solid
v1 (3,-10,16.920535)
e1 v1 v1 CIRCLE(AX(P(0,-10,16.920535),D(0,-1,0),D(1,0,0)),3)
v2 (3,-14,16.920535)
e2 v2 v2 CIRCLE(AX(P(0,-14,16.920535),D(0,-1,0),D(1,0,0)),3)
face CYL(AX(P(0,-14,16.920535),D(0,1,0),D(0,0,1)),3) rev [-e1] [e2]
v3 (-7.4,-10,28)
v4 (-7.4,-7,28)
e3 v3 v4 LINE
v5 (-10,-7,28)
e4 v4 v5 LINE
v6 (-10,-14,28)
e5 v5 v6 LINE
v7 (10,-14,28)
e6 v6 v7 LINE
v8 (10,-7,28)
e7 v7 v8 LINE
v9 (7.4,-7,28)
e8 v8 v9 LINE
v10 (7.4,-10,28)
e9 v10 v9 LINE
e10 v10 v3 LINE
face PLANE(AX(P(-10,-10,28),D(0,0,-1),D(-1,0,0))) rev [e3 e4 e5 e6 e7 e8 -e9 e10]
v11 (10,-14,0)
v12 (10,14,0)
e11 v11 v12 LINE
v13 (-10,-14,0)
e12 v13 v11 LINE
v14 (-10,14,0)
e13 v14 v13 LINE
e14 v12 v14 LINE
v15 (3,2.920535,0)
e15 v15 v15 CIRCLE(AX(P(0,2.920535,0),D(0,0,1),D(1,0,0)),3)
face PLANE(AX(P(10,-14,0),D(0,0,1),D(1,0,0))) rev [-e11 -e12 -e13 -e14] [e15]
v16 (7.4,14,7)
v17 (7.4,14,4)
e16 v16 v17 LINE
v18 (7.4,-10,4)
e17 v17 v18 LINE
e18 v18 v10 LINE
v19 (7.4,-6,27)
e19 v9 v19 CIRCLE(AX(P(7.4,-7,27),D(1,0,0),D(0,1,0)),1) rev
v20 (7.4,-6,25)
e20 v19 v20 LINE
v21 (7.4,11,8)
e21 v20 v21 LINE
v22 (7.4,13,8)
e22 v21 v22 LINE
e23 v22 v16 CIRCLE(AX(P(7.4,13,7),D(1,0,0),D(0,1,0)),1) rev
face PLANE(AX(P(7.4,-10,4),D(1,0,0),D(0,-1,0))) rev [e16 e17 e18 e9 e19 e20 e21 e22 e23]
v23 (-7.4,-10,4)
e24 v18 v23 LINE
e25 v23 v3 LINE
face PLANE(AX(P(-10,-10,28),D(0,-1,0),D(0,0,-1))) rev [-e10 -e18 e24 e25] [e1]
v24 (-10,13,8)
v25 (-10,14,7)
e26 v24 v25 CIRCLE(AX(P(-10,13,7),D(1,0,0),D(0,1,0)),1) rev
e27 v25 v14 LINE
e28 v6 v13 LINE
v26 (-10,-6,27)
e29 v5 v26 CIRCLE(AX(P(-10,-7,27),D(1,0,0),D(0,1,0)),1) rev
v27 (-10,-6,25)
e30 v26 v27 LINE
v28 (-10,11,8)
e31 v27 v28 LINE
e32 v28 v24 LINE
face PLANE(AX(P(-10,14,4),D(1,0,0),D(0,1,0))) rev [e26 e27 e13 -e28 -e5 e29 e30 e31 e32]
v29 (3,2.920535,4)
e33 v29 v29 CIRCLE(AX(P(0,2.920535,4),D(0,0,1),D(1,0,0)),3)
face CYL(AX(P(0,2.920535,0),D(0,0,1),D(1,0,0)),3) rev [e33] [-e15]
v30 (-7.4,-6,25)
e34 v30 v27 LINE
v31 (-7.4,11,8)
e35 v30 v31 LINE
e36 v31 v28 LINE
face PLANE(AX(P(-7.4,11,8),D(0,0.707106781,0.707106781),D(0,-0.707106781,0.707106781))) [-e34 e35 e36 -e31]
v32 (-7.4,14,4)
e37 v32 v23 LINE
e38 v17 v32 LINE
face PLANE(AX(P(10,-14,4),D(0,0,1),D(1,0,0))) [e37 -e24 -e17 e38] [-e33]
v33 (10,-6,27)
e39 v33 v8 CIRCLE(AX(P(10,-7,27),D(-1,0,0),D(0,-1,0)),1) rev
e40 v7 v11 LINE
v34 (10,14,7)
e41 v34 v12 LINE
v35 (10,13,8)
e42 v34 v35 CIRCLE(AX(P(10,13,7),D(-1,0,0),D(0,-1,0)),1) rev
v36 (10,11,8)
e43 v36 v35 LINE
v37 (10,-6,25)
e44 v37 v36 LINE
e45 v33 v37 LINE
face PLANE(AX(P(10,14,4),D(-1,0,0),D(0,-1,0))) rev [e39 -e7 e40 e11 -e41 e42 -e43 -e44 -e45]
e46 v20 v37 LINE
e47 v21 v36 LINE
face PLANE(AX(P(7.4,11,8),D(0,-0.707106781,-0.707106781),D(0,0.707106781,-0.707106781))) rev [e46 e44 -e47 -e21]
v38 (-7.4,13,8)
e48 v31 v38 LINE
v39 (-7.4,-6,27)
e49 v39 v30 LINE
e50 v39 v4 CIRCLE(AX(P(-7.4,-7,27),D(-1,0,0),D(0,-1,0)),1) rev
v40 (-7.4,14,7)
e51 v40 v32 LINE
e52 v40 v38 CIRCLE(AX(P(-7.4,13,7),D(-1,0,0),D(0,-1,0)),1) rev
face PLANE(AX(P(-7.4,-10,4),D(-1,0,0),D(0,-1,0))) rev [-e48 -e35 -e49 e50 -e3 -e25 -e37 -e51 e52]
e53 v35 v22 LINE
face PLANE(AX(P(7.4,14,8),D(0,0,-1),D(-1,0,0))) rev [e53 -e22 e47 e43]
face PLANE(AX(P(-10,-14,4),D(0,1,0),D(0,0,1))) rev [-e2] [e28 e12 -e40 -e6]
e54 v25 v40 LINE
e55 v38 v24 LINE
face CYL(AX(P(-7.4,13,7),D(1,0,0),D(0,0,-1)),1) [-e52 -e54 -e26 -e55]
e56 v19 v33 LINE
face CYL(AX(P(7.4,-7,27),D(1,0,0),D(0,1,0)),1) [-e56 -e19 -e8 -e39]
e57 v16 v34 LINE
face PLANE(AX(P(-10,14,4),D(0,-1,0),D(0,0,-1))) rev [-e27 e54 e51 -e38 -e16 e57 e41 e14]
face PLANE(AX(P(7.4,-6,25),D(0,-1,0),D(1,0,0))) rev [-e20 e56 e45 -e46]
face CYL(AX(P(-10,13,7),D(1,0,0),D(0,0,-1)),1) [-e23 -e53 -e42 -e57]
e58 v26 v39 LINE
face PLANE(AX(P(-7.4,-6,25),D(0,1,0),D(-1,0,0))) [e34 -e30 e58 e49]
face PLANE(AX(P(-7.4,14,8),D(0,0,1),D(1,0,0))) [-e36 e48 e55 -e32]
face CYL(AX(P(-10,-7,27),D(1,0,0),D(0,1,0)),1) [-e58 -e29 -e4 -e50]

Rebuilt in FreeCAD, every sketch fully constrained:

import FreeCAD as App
import Part
import Sketcher

V = App.Vector


def edges_at(feature, points):
    """Names of the edges that pass closest to the given points."""
    edges = feature.Shape.Edges
    near = lambda p: min(range(len(edges)), key=lambda i: edges[i].distToShape(Part.Vertex(*p))[0])
    return sorted({f"Edge{near(p) + 1}" for p in points})

doc = App.newDocument("Part")
body = doc.addObject("PartDesign::Body", "Body")

sketch1 = body.newObject("Sketcher::SketchObject", "Sketch")
sketch1.AttachmentSupport = (doc.getObject("XY_Plane"), [""])
sketch1.MapMode = "FlatFace"
sketch1.addGeometry(Part.LineSegment(V(-10, 14, 0), V(-10, -14, 0)), False)
sketch1.addGeometry(Part.LineSegment(V(-10, -14, 0), V(10, -14, 0)), False)
sketch1.addGeometry(Part.LineSegment(V(10, -14, 0), V(10, 14, 0)), False)
sketch1.addGeometry(Part.LineSegment(V(10, 14, 0), V(-10, 14, 0)), False)
sketch1.addConstraint(Sketcher.Constraint("Coincident", 0, 2, 1, 1))
sketch1.addConstraint(Sketcher.Constraint("Coincident", 1, 2, 2, 1))
sketch1.addConstraint(Sketcher.Constraint("Coincident", 2, 2, 3, 1))
sketch1.addConstraint(Sketcher.Constraint("Coincident", 3, 2, 0, 1))
sketch1.addConstraint(Sketcher.Constraint("Vertical", 0))
sketch1.addConstraint(Sketcher.Constraint("Horizontal", 1))
sketch1.addConstraint(Sketcher.Constraint("Vertical", 2))
sketch1.addConstraint(Sketcher.Constraint("Horizontal", 3))
sketch1.addConstraint(Sketcher.Constraint("Symmetric", 0, 2, 2, 2, -1, 1))
sketch1.addConstraint(Sketcher.Constraint("DistanceX", 1, 1, 1, 2, 20.0))
sketch1.addConstraint(Sketcher.Constraint("DistanceY", 0, 2, 0, 1, 28.0))
pad1 = body.newObject("PartDesign::Pad", "Pad")
pad1.Profile = sketch1
pad1.Length = 4

sketch2 = body.newObject("Sketcher::SketchObject", "Sketch001")
sketch2.AttachmentSupport = (doc.getObject("XY_Plane"), [""])
sketch2.MapMode = "FlatFace"
sketch2.AttachmentOffset = App.Placement(V(0, 0, 4), App.Rotation())
sketch2.addGeometry(Part.LineSegment(V(-10, -10, 0), V(-10, -14, 0)), False)
sketch2.addGeometry(Part.LineSegment(V(-10, -14, 0), V(10, -14, 0)), False)
sketch2.addGeometry(Part.LineSegment(V(10, -14, 0), V(10, -10, 0)), False)
sketch2.addGeometry(Part.LineSegment(V(10, -10, 0), V(-10, -10, 0)), False)
sketch2.addConstraint(Sketcher.Constraint("Coincident", 0, 2, 1, 1))
sketch2.addConstraint(Sketcher.Constraint("Coincident", 1, 2, 2, 1))
sketch2.addConstraint(Sketcher.Constraint("Coincident", 2, 2, 3, 1))
sketch2.addConstraint(Sketcher.Constraint("Coincident", 3, 2, 0, 1))
sketch2.addConstraint(Sketcher.Constraint("Vertical", 0))
sketch2.addConstraint(Sketcher.Constraint("Horizontal", 1))
sketch2.addConstraint(Sketcher.Constraint("Vertical", 2))
sketch2.addConstraint(Sketcher.Constraint("Horizontal", 3))
sketch2.addConstraint(Sketcher.Constraint("DistanceX", 1, 1, 1, 2, 20.0))
sketch2.addConstraint(Sketcher.Constraint("DistanceY", 0, 2, 0, 1, 4.0))
sketch2.addConstraint(Sketcher.Constraint("DistanceX", 0, 2, -1, 1, 10.0))
sketch2.addConstraint(Sketcher.Constraint("DistanceY", 0, 2, -1, 1, 14.0))
pad2 = body.newObject("PartDesign::Pad", "Pad001")
pad2.Profile = sketch2
pad2.Length = 24

sketch3 = body.newObject("Sketcher::SketchObject", "Sketch002")
sketch3.AttachmentSupport = (doc.getObject("YZ_Plane"), [""])
sketch3.MapMode = "FlatFace"
sketch3.AttachmentOffset = App.Placement(V(0, 0, -10), App.Rotation())
sketch3.addGeometry(Part.LineSegment(V(14, 8, 0), V(14, 4, 0)), False)
sketch3.addGeometry(Part.LineSegment(V(14, 4, 0), V(-10, 4, 0)), False)
sketch3.addGeometry(Part.LineSegment(V(-10, 4, 0), V(-10, 28, 0)), False)
sketch3.addGeometry(Part.LineSegment(V(-10, 28, 0), V(-6, 28, 0)), False)
sketch3.addGeometry(Part.LineSegment(V(-6, 28, 0), V(-6, 25, 0)), False)
sketch3.addGeometry(Part.LineSegment(V(-6, 25, 0), V(11, 8, 0)), False)
sketch3.addGeometry(Part.LineSegment(V(11, 8, 0), V(14, 8, 0)), False)
sketch3.addConstraint(Sketcher.Constraint("Coincident", 0, 2, 1, 1))
sketch3.addConstraint(Sketcher.Constraint("Coincident", 1, 2, 2, 1))
sketch3.addConstraint(Sketcher.Constraint("Coincident", 2, 2, 3, 1))
sketch3.addConstraint(Sketcher.Constraint("Coincident", 3, 2, 4, 1))
sketch3.addConstraint(Sketcher.Constraint("Coincident", 4, 2, 5, 1))
sketch3.addConstraint(Sketcher.Constraint("Coincident", 5, 2, 6, 1))
sketch3.addConstraint(Sketcher.Constraint("Coincident", 6, 2, 0, 1))
sketch3.addConstraint(Sketcher.Constraint("Vertical", 0))
sketch3.addConstraint(Sketcher.Constraint("Horizontal", 1))
sketch3.addConstraint(Sketcher.Constraint("Vertical", 2))
sketch3.addConstraint(Sketcher.Constraint("Horizontal", 3))
sketch3.addConstraint(Sketcher.Constraint("Vertical", 4))
sketch3.addConstraint(Sketcher.Constraint("Horizontal", 6))
sketch3.addConstraint(Sketcher.Constraint("Equal", 3, 0))
sketch3.addConstraint(Sketcher.Constraint("Equal", 1, 2))
sketch3.addConstraint(Sketcher.Constraint("Equal", 6, 4))
sketch3.addConstraint(Sketcher.Constraint("DistanceX", 1, 2, 1, 1, 24.0))
sketch3.addConstraint(Sketcher.Constraint("DistanceX", 3, 1, 3, 2, 4.0))
sketch3.addConstraint(Sketcher.Constraint("DistanceX", 6, 1, 6, 2, 3.0))
sketch3.addConstraint(Sketcher.Constraint("DistanceX", -1, 1, 0, 2, 14.0))
sketch3.addConstraint(Sketcher.Constraint("DistanceY", -1, 1, 0, 2, 4.0))
pad3 = body.newObject("PartDesign::Pad", "Pad002")
pad3.Profile = sketch3
pad3.Length = 2.6
doc.recompute()

mirrored = body.newObject("PartDesign::Mirrored", "Mirrored")
mirrored.Originals = [pad3]
mirrored.MirrorPlane = (doc.getObject("YZ_Plane"), [""])
body.Tip = mirrored
doc.recompute()

fillet = body.newObject("PartDesign::Fillet", "Fillet")
fillet.Base = (mirrored, edges_at(mirrored, [
    (-8.7, 14, 8),
    (-8.7, -6, 28),
    (8.7, -6, 28),
    (8.7, 14, 8),
]))
fillet.Radius = 1

sketch4 = body.newObject("Sketcher::SketchObject", "Sketch003")
sketch4.AttachmentSupport = (doc.getObject("XY_Plane"), [""])
sketch4.MapMode = "FlatFace"
sketch4.AttachmentOffset = App.Placement(V(0, 0, 4), App.Rotation())
sketch4.addGeometry(Part.Circle(V(0, 2.9, 0), V(0, 0, 1), 3), False)
sketch4.addConstraint(Sketcher.Constraint("PointOnObject", 0, 3, -2))
sketch4.addConstraint(Sketcher.Constraint("Diameter", 0, 6.0))
sketch4.addConstraint(Sketcher.Constraint("DistanceY", -1, 1, 0, 3, 2.920535))
pocket1 = body.newObject("PartDesign::Pocket", "Pocket")
pocket1.Profile = sketch4
pocket1.Type = "ThroughAll"
doc.recompute()

datumplane = body.newObject("PartDesign::Plane", "DatumPlane")
datumplane.Placement = App.Placement(V(0, -7, 7), App.Rotation(V(0, 0.707106781, 0.707106781), V(-1, 0, 0), V(0, -0.707106781, 0.707106781), "ZXY"))
mirrored2 = body.newObject("PartDesign::Mirrored", "Mirrored001")
mirrored2.Originals = [pocket1]
mirrored2.MirrorPlane = (datumplane, [""])
body.Tip = mirrored2

doc.recompute()
